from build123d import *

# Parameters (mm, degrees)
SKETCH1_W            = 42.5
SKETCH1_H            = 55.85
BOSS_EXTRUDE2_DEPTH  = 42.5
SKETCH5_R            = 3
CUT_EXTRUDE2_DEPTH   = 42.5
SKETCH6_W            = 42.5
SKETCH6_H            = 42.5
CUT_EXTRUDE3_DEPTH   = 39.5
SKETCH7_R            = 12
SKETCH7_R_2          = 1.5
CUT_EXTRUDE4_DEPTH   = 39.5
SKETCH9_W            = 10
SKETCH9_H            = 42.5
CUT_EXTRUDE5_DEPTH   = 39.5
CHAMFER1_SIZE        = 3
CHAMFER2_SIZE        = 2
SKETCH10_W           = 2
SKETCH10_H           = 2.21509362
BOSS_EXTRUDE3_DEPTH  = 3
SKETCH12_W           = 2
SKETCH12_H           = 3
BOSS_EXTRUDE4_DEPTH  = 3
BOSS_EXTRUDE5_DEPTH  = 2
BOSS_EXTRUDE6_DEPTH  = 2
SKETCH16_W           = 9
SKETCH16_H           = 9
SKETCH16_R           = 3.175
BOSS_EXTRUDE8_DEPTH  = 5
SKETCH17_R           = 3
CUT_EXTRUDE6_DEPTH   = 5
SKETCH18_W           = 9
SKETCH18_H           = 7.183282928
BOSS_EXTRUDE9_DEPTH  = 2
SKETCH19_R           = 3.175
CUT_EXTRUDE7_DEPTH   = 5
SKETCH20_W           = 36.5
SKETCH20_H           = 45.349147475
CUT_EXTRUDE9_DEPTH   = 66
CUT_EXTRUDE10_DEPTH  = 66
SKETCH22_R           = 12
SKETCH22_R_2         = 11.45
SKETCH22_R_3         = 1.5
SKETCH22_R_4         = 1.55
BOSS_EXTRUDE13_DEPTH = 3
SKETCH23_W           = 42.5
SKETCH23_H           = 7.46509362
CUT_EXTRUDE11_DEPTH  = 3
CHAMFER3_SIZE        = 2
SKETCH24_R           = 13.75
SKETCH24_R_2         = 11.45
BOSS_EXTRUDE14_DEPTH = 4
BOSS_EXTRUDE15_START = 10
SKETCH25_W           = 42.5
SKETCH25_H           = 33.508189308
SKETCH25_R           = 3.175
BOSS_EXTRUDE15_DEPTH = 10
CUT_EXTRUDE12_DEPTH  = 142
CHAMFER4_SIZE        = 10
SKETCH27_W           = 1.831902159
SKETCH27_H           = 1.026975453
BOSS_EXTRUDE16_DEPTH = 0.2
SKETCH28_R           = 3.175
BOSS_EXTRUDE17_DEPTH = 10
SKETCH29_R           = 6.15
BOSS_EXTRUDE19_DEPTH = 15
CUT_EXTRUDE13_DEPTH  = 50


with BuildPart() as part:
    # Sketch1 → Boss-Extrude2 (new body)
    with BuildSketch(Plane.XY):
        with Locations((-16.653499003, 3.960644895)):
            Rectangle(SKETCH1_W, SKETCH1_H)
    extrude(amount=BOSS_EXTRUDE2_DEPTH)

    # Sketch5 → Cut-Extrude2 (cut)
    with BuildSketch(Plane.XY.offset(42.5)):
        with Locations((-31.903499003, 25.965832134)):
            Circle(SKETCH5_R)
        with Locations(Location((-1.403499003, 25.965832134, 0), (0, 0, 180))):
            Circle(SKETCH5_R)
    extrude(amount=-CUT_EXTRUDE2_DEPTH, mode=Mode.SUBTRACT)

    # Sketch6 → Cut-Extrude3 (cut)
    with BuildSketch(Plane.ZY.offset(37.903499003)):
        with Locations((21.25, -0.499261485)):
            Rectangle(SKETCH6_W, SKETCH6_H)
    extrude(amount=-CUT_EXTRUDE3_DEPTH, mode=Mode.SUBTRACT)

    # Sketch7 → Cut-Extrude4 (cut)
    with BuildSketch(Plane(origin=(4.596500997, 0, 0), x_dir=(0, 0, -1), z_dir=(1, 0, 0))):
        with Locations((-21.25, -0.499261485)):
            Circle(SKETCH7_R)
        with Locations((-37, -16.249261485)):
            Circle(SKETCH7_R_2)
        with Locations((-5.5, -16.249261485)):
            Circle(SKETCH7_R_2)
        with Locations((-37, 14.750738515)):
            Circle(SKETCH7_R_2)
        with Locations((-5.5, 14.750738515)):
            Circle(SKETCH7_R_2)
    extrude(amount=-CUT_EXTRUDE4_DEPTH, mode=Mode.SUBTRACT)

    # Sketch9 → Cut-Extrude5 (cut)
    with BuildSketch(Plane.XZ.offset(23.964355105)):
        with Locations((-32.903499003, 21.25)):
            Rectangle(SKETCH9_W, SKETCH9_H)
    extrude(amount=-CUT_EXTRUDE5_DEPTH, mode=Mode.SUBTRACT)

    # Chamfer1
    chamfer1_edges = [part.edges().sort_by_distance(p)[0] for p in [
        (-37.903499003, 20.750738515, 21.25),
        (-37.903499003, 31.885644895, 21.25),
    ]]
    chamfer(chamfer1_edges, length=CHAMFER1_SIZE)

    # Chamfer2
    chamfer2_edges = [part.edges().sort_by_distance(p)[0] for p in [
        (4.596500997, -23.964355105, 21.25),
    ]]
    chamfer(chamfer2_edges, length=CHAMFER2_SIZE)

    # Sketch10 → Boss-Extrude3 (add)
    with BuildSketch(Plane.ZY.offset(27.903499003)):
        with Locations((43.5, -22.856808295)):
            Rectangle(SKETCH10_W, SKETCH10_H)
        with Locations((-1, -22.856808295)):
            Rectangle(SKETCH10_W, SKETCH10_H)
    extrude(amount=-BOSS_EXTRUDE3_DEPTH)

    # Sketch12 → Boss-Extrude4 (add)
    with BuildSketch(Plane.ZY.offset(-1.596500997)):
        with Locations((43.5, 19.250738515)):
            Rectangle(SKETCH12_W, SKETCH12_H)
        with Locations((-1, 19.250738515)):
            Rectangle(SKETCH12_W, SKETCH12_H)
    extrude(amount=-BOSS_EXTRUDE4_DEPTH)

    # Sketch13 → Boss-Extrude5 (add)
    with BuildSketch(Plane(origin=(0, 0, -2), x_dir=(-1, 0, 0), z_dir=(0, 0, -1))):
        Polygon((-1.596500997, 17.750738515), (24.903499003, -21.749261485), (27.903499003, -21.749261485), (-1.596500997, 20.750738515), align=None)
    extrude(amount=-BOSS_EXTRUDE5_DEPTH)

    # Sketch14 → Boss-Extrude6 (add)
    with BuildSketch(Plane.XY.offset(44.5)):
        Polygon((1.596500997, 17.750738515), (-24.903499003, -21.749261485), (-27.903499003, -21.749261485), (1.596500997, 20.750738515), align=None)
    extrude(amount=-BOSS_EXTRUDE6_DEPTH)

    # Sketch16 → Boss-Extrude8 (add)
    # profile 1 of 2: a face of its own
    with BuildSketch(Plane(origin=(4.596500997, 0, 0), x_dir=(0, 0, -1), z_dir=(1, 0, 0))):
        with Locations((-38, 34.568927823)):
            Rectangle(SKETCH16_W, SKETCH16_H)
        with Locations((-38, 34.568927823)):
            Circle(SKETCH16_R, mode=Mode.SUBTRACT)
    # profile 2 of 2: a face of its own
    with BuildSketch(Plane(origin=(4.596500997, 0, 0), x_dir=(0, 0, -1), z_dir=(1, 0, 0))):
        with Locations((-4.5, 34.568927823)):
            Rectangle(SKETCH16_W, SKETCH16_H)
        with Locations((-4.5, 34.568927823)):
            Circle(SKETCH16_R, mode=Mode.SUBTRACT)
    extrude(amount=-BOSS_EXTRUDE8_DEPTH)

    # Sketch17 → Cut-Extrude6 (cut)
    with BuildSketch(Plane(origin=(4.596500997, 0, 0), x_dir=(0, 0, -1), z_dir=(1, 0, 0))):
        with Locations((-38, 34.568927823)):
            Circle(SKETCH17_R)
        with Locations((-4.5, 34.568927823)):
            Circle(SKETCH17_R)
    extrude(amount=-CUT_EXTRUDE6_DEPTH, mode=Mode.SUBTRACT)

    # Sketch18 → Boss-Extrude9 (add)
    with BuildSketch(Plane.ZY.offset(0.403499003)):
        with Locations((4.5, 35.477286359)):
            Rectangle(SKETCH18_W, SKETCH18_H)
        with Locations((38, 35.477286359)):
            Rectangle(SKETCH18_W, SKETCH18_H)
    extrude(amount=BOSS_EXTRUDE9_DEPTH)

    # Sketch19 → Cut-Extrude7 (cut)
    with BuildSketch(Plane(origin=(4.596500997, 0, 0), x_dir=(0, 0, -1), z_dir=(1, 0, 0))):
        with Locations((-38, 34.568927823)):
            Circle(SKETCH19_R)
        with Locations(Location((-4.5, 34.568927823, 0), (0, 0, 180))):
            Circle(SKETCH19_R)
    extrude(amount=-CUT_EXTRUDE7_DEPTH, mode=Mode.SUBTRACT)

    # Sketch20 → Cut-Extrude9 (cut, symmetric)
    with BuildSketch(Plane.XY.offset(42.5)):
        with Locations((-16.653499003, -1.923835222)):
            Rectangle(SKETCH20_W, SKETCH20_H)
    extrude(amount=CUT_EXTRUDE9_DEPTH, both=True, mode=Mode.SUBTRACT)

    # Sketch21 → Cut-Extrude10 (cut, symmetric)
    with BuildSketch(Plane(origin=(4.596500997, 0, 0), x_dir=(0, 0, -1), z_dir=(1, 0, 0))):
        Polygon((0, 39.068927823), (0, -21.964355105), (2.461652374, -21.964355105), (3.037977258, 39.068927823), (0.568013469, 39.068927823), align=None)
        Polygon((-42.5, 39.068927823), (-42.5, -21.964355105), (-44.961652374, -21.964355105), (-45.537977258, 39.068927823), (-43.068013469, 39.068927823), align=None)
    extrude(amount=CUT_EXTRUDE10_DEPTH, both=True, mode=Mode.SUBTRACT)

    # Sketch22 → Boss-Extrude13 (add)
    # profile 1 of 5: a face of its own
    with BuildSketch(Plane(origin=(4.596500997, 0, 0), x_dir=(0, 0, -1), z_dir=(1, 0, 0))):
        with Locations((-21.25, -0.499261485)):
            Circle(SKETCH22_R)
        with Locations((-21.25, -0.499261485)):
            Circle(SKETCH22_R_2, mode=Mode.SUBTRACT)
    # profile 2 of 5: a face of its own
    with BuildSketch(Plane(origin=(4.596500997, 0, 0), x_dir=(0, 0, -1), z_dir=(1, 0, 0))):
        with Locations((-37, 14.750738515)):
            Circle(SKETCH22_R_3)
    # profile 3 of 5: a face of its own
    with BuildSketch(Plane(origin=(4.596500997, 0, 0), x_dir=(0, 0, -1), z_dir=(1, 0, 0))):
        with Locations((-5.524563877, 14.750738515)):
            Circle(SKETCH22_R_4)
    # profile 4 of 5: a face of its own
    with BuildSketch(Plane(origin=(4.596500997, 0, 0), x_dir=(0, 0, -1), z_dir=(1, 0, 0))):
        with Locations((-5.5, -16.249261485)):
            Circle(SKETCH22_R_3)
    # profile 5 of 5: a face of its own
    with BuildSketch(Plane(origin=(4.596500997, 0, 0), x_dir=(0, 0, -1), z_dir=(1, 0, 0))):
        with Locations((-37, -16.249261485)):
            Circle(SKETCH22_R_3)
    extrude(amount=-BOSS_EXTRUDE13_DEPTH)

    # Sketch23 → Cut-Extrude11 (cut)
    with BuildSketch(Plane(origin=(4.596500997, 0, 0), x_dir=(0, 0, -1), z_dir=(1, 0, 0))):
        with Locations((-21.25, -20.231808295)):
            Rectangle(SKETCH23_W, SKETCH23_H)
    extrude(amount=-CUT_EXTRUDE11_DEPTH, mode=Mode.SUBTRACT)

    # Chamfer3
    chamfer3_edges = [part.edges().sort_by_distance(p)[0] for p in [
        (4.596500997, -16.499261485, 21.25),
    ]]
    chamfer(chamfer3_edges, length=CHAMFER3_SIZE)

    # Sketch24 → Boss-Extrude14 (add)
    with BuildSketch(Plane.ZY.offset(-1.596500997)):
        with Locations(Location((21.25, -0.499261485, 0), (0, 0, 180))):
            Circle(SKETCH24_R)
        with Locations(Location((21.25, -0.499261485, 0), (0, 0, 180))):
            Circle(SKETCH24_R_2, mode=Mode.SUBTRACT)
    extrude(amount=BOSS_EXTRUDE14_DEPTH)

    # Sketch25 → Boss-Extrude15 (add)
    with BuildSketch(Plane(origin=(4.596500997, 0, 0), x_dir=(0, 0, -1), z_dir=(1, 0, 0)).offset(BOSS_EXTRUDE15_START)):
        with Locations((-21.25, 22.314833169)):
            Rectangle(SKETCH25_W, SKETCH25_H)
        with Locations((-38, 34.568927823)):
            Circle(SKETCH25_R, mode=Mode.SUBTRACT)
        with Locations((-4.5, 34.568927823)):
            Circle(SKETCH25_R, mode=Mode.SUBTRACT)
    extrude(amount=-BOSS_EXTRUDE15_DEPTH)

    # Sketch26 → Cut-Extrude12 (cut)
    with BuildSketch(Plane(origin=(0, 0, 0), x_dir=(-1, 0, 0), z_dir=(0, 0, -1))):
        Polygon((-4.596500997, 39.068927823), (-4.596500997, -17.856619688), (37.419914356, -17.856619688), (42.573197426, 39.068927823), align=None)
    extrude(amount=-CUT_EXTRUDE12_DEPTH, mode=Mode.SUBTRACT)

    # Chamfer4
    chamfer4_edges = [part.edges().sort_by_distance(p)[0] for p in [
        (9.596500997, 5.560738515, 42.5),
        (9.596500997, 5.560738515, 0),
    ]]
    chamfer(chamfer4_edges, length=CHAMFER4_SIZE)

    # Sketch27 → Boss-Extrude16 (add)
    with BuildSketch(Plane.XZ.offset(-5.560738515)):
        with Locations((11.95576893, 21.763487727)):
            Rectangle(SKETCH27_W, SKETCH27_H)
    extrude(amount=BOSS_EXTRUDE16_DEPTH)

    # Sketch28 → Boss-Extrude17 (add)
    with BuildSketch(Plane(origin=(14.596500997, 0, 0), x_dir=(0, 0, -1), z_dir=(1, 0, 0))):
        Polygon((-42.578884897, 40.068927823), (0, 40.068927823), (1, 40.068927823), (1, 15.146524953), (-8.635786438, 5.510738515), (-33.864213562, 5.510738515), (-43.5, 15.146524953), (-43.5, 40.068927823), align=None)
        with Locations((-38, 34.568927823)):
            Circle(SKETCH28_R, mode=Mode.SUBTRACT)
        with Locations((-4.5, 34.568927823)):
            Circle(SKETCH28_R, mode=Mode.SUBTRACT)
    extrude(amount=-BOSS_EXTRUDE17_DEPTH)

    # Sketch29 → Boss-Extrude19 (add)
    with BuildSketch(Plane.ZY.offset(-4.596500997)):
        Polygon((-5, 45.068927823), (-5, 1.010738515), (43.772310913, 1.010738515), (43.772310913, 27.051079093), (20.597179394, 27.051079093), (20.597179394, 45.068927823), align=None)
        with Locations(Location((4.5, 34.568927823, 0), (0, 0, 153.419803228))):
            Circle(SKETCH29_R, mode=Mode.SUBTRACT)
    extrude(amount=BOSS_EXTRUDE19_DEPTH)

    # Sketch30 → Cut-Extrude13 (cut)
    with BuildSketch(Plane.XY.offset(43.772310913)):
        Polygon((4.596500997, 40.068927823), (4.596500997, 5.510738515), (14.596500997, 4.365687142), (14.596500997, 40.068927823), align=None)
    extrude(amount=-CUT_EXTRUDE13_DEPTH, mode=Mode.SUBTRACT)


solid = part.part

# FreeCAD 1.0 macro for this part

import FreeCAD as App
import Part
import Sketcher

V = App.Vector
Q = App.Units.Quantity


def edges_at(feature, points):
    """Names of the edges that pass closest to the given points."""
    edges = feature.Shape.Edges
    near = lambda p: min(range(len(edges)), key=lambda i: edges[i].distToShape(Part.Vertex(*p))[0])
    return sorted({f"Edge{near(p) + 1}" for p in points})

doc = App.newDocument("Part")
body = doc.addObject("PartDesign::Body", "Body")

# Sketch on XY plane
sketch1 = body.newObject("Sketcher::SketchObject", "Sketch")
sketch1.AttachmentSupport = (doc.getObject("XY_Plane"), [""])
sketch1.MapMode = "FlatFace"
sketch1.addGeometry([
    Part.LineSegment(V(-37.903499, 31.885645, 0), V(-37.903499, -23.964355, 0)),
    Part.LineSegment(V(-37.903499, -23.964355, 0), V(4.596501, -23.964355, 0)),
    Part.LineSegment(V(4.596501, -23.964355, 0), V(4.596501, 31.885645, 0)),
    Part.LineSegment(V(4.596501, 31.885645, 0), V(-37.903499, 31.885645, 0)),
], False)
sketch1.addConstraint([
    Sketcher.Constraint("Coincident", 0, 2, 1, 1),
    Sketcher.Constraint("Coincident", 1, 2, 2, 1),
    Sketcher.Constraint("Coincident", 2, 2, 3, 1),
    Sketcher.Constraint("Coincident", 3, 2, 0, 1),
    Sketcher.Constraint("Vertical", 0),
    Sketcher.Constraint("Horizontal", 1),
    Sketcher.Constraint("Vertical", 2),
    Sketcher.Constraint("Horizontal", 3),
    Sketcher.Constraint("DistanceX", 1, 1, 1, 2, Q("42.5 mm")),
    Sketcher.Constraint("DistanceY", 0, 2, 0, 1, Q("55.85 mm")),
    Sketcher.Constraint("DistanceX", 0, 2, -1, 1, Q("37.903499 mm")),
    Sketcher.Constraint("DistanceY", 0, 2, -1, 1, Q("23.964355 mm")),
])
pad1 = body.newObject("PartDesign::Pad", "Pad")
pad1.Profile = sketch1
pad1.Length = 42.5

# Sketch on XY plane
sketch2 = body.newObject("Sketcher::SketchObject", "Sketch001")
sketch2.AttachmentSupport = (doc.getObject("XY_Plane"), [""])
sketch2.MapMode = "FlatFace"
sketch2.AttachmentOffset = App.Placement(V(0, 0, 42.5), App.Rotation())
sketch2.addGeometry([
    Part.Circle(V(-31.903499, 25.965832, 0), V(0, 0, 1), 3),
    Part.Circle(V(-1.403499, 25.965832, 0), V(0, 0, 1), 3),
], False)
sketch2.addConstraint([
    Sketcher.Constraint("Equal", 0, 1),
    Sketcher.Constraint("Horizontal", 0, 3, 1, 3),
    Sketcher.Constraint("Diameter", 0, Q("6 mm")),
    Sketcher.Constraint("DistanceX", 0, 3, 1, 3, Q("30.5 mm")),
    Sketcher.Constraint("DistanceX", 0, 3, -1, 1, Q("31.903499 mm")),
    Sketcher.Constraint("DistanceY", -1, 1, 0, 3, Q("25.965832 mm")),
])
pocket1 = body.newObject("PartDesign::Pocket", "Pocket")
pocket1.Profile = sketch2
pocket1.Length = 42.5

# Sketch on YZ plane
sketch3 = body.newObject("Sketcher::SketchObject", "Sketch002")
sketch3.AttachmentSupport = (doc.getObject("YZ_Plane"), [""])
sketch3.MapMode = "FlatFace"
sketch3.AttachmentOffset = App.Placement(V(0, 0, -37.903499), App.Rotation())
sketch3.addGeometry([
    Part.LineSegment(V(20.750739, 0, 0), V(-21.749261, 0, 0)),
    Part.LineSegment(V(-21.749261, 0, 0), V(-21.749261, 42.5, 0)),
    Part.LineSegment(V(-21.749261, 42.5, 0), V(20.750739, 42.5, 0)),
    Part.LineSegment(V(20.750739, 42.5, 0), V(20.750739, 0, 0)),
], False)
sketch3.addConstraint([
    Sketcher.Constraint("Coincident", 0, 2, 1, 1),
    Sketcher.Constraint("Coincident", 1, 2, 2, 1),
    Sketcher.Constraint("Coincident", 2, 2, 3, 1),
    Sketcher.Constraint("Coincident", 3, 2, 0, 1),
    Sketcher.Constraint("Horizontal", 0),
    Sketcher.Constraint("Vertical", 1),
    Sketcher.Constraint("Horizontal", 2),
    Sketcher.Constraint("Vertical", 3),
    Sketcher.Constraint("PointOnObject", 0, 2, -1),
    Sketcher.Constraint("Equal", 2, 1),
    Sketcher.Constraint("DistanceX", 0, 2, 0, 1, Q("42.5 mm")),
    Sketcher.Constraint("DistanceX", 0, 2, -1, 1, Q("21.749261 mm")),
])
pocket2 = body.newObject("PartDesign::Pocket", "Pocket001")
pocket2.Profile = sketch3
pocket2.Length = 39.5
pocket2.Reversed = True

# Sketch on YZ plane
sketch4 = body.newObject("Sketcher::SketchObject", "Sketch003")
sketch4.AttachmentSupport = (doc.getObject("YZ_Plane"), [""])
sketch4.MapMode = "FlatFace"
sketch4.AttachmentOffset = App.Placement(V(0, 0, 4.596501), App.Rotation())
sketch4.addGeometry([
    Part.Circle(V(-0.499261, 21.25, 0), V(0, 0, 1), 12),  # 0
    Part.Circle(V(-16.249261, 37, 0), V(0, 0, 1), 1.5),  # 1
    Part.Circle(V(-16.249261, 5.5, 0), V(0, 0, 1), 1.5),  # 2
    Part.Circle(V(14.750739, 37, 0), V(0, 0, 1), 1.5),  # 3
    Part.Circle(V(14.750739, 5.5, 0), V(0, 0, 1), 1.5),  # 4
], False)
sketch4.addConstraint([
    Sketcher.Constraint("Equal", 1, 2),
    Sketcher.Constraint("Equal", 2, 3),
    Sketcher.Constraint("Equal", 3, 4),
    Sketcher.Constraint("Horizontal", 1, 3, 3, 3),
    Sketcher.Constraint("Horizontal", 2, 3, 4, 3),
    Sketcher.Constraint("Vertical", 1, 3, 2, 3),
    Sketcher.Constraint("Vertical", 3, 3, 4, 3),
    Sketcher.Constraint("Diameter", 0, Q("24 mm")),
    Sketcher.Constraint("Diameter", 1, Q("3 mm")),
    Sketcher.Constraint("DistanceY", -1, 1, 1, 3, Q("37 mm")),
    Sketcher.Constraint("DistanceX", 1, 3, 3, 3, Q("31 mm")),
    Sketcher.Constraint("DistanceY", -1, 1, 2, 3, Q("5.5 mm")),
    Sketcher.Constraint("DistanceY", -1, 1, 0, 3, Q("21.25 mm")),
    Sketcher.Constraint("DistanceX", 1, 3, 0, 3, Q("15.75 mm")),
    Sketcher.Constraint("DistanceX", 0, 3, -1, 1, Q("0.499261 mm")),
])
pocket3 = body.newObject("PartDesign::Pocket", "Pocket002")
pocket3.Profile = sketch4
pocket3.Length = 39.5

# Sketch on XZ plane
sketch5 = body.newObject("Sketcher::SketchObject", "Sketch004")
sketch5.AttachmentSupport = (doc.getObject("XZ_Plane"), [""])
sketch5.MapMode = "FlatFace"
sketch5.AttachmentOffset = App.Placement(V(0, 0, 23.964355), App.Rotation())
sketch5.addGeometry([
    Part.LineSegment(V(-37.903499, 42.5, 0), V(-37.903499, 0, 0)),
    Part.LineSegment(V(-37.903499, 0, 0), V(-27.903499, 0, 0)),
    Part.LineSegment(V(-27.903499, 0, 0), V(-27.903499, 42.5, 0)),
    Part.LineSegment(V(-27.903499, 42.5, 0), V(-37.903499, 42.5, 0)),
], False)
sketch5.addConstraint([
    Sketcher.Constraint("Coincident", 0, 2, 1, 1),
    Sketcher.Constraint("Coincident", 1, 2, 2, 1),
    Sketcher.Constraint("Coincident", 2, 2, 3, 1),
    Sketcher.Constraint("Coincident", 3, 2, 0, 1),
    Sketcher.Constraint("Vertical", 0),
    Sketcher.Constraint("Horizontal", 1),
    Sketcher.Constraint("Vertical", 2),
    Sketcher.Constraint("Horizontal", 3),
    Sketcher.Constraint("PointOnObject", 0, 2, -1),
    Sketcher.Constraint("DistanceX", 1, 1, 1, 2, Q("10 mm")),
    Sketcher.Constraint("DistanceY", 0, 2, 0, 1, Q("42.5 mm")),
    Sketcher.Constraint("DistanceX", 0, 2, -1, 1, Q("37.903499 mm")),
])
pocket4 = body.newObject("PartDesign::Pocket", "Pocket003")
pocket4.Profile = sketch5
pocket4.Length = 39.5
doc.recompute()

chamfer = body.newObject("PartDesign::Chamfer", "Chamfer")
chamfer.Base = (pocket4, edges_at(pocket4, [(-37.903, 20.751, 21.25), (-37.903, 31.886, 21.25)]))
chamfer.Size = 3
doc.recompute()

chamfer2 = body.newObject("PartDesign::Chamfer", "Chamfer001")
chamfer2.Base = (chamfer, edges_at(chamfer, [(4.597, -23.964, 21.25)]))
chamfer2.Size = 2

# Sketch on YZ plane
sketch6 = body.newObject("Sketcher::SketchObject", "Sketch005")
sketch6.AttachmentSupport = (doc.getObject("YZ_Plane"), [""])
sketch6.MapMode = "FlatFace"
sketch6.AttachmentOffset = App.Placement(V(0, 0, -27.903499), App.Rotation())
sketch6.addGeometry([
    Part.LineSegment(V(-21.749261, 42.5, 0), V(-23.964355, 42.5, 0)),  # 0
    Part.LineSegment(V(-23.964355, 42.5, 0), V(-23.964355, 44.5, 0)),  # 1
    Part.LineSegment(V(-23.964355, 44.5, 0), V(-21.749261, 44.5, 0)),  # 2
    Part.LineSegment(V(-21.749261, 44.5, 0), V(-21.749261, 42.5, 0)),  # 3
    Part.LineSegment(V(-21.749261, -2, 0), V(-23.964355, -2, 0)),  # 4
    Part.LineSegment(V(-23.964355, -2, 0), V(-23.964355, 0, 0)),  # 5
    Part.LineSegment(V(-23.964355, 0, 0), V(-21.749261, 0, 0)),  # 6
    Part.LineSegment(V(-21.749261, 0, 0), V(-21.749261, -2, 0)),  # 7
], False)
sketch6.addConstraint([
    Sketcher.Constraint("Coincident", 0, 2, 1, 1),
    Sketcher.Constraint("Coincident", 1, 2, 2, 1),
    Sketcher.Constraint("Coincident", 2, 2, 3, 1),
    Sketcher.Constraint("Coincident", 3, 2, 0, 1),
    Sketcher.Constraint("Coincident", 4, 2, 5, 1),
    Sketcher.Constraint("Coincident", 5, 2, 6, 1),
    Sketcher.Constraint("Coincident", 6, 2, 7, 1),
    Sketcher.Constraint("Coincident", 7, 2, 4, 1),
    Sketcher.Constraint("Horizontal", 0),
    Sketcher.Constraint("Vertical", 1),
    Sketcher.Constraint("Horizontal", 2),
    Sketcher.Constraint("Vertical", 3),
    Sketcher.Constraint("Horizontal", 4),
    Sketcher.Constraint("Vertical", 5),
    Sketcher.Constraint("Horizontal", 6),
    Sketcher.Constraint("Vertical", 7),
    Sketcher.Constraint("PointOnObject", 5, 2, -1),
    Sketcher.Constraint("Vertical", 1, 2, 4, 2),
    Sketcher.Constraint("Vertical", 3, 2, 6, 2),
    Sketcher.Constraint("Equal", 3, 5),
    Sketcher.Constraint("DistanceY", 1, 1, 1, 2, Q("2 mm")),
    Sketcher.Constraint("DistanceY", -1, 1, 0, 2, Q("42.5 mm")),
    Sketcher.Constraint("DistanceX", 0, 2, 0, 1, Q("2.215094 mm")),
    Sketcher.Constraint("DistanceX", 2, 2, -1, 1, Q("21.749261 mm")),
])
pad2 = body.newObject("PartDesign::Pad", "Pad001")
pad2.Profile = sketch6
pad2.Length = 3

# Sketch on YZ plane
sketch7 = body.newObject("Sketcher::SketchObject", "Sketch006")
sketch7.AttachmentSupport = (doc.getObject("YZ_Plane"), [""])
sketch7.MapMode = "FlatFace"
sketch7.AttachmentOffset = App.Placement(V(0, 0, 1.596501), App.Rotation())
sketch7.addGeometry([
    Part.LineSegment(V(20.750739, 42.5, 0), V(17.750739, 42.5, 0)),  # 0
    Part.LineSegment(V(17.750739, 42.5, 0), V(17.750739, 44.5, 0)),  # 1
    Part.LineSegment(V(17.750739, 44.5, 0), V(20.750739, 44.5, 0)),  # 2
    Part.LineSegment(V(20.750739, 44.5, 0), V(20.750739, 42.5, 0)),  # 3
    Part.LineSegment(V(20.750739, -2, 0), V(17.750739, -2, 0)),  # 4
    Part.LineSegment(V(17.750739, -2, 0), V(17.750739, 0, 0)),  # 5
    Part.LineSegment(V(17.750739, 0, 0), V(20.750739, 0, 0)),  # 6
    Part.LineSegment(V(20.750739, 0, 0), V(20.750739, -2, 0)),  # 7
], False)
sketch7.addConstraint([
    Sketcher.Constraint("Coincident", 0, 2, 1, 1),
    Sketcher.Constraint("Coincident", 1, 2, 2, 1),
    Sketcher.Constraint("Coincident", 2, 2, 3, 1),
    Sketcher.Constraint("Coincident", 3, 2, 0, 1),
    Sketcher.Constraint("Coincident", 4, 2, 5, 1),
    Sketcher.Constraint("Coincident", 5, 2, 6, 1),
    Sketcher.Constraint("Coincident", 6, 2, 7, 1),
    Sketcher.Constraint("Coincident", 7, 2, 4, 1),
    Sketcher.Constraint("Horizontal", 0),
    Sketcher.Constraint("Vertical", 1),
    Sketcher.Constraint("Horizontal", 2),
    Sketcher.Constraint("Vertical", 3),
    Sketcher.Constraint("Horizontal", 4),
    Sketcher.Constraint("Vertical", 5),
    Sketcher.Constraint("Horizontal", 6),
    Sketcher.Constraint("Vertical", 7),
    Sketcher.Constraint("PointOnObject", 5, 2, -1),
    Sketcher.Constraint("Vertical", 1, 2, 4, 2),
    Sketcher.Constraint("Vertical", 3, 2, 6, 2),
    Sketcher.Constraint("Equal", 3, 5),
    Sketcher.Constraint("DistanceX", 0, 2, 0, 1, Q("3 mm")),
    Sketcher.Constraint("DistanceY", 1, 1, 1, 2, Q("2 mm")),
    Sketcher.Constraint("DistanceY", -1, 1, 0, 2, Q("42.5 mm")),
    Sketcher.Constraint("DistanceX", -1, 1, 0, 2, Q("17.750739 mm")),
])
pad3 = body.newObject("PartDesign::Pad", "Pad002")
pad3.Profile = sketch7
pad3.Length = 3

# Sketch on XY plane
sketch8 = body.newObject("Sketcher::SketchObject", "Sketch007")
sketch8.AttachmentSupport = (doc.getObject("XY_Plane"), [""])
sketch8.MapMode = "FlatFace"
sketch8.AttachmentOffset = App.Placement(V(0, 0, -2), App.Rotation())
sketch8.addGeometry([
    Part.LineSegment(V(1.596501, 17.750739, 0), V(-24.903499, -21.749261, 0)),
    Part.LineSegment(V(-24.903499, -21.749261, 0), V(-27.903499, -21.749261, 0)),
    Part.LineSegment(V(-27.903499, -21.749261, 0), V(1.596501, 20.750739, 0)),
    Part.LineSegment(V(1.596501, 20.750739, 0), V(1.596501, 17.750739, 0)),
], False)
sketch8.addConstraint([
    Sketcher.Constraint("Coincident", 0, 2, 1, 1),
    Sketcher.Constraint("Coincident", 1, 2, 2, 1),
    Sketcher.Constraint("Coincident", 2, 2, 3, 1),
    Sketcher.Constraint("Coincident", 3, 2, 0, 1),
    Sketcher.Constraint("Horizontal", 1),
    Sketcher.Constraint("Vertical", 3),
    Sketcher.Constraint("Equal", 1, 3),
    Sketcher.Constraint("DistanceX", 1, 2, 1, 1, Q("3 mm")),
    Sketcher.Constraint("DistanceX", 0, 2, 2, 2, Q("26.5 mm")),
    Sketcher.Constraint("DistanceY", 0, 2, 2, 2, Q("42.5 mm")),
    Sketcher.Constraint("DistanceX", 0, 2, -1, 1, Q("24.903499 mm")),
    Sketcher.Constraint("DistanceY", 0, 2, -1, 1, Q("21.749261 mm")),
])
pad4 = body.newObject("PartDesign::Pad", "Pad003")
pad4.Profile = sketch8
pad4.Length = 2

# Sketch on XY plane
sketch9 = body.newObject("Sketcher::SketchObject", "Sketch008")
sketch9.AttachmentSupport = (doc.getObject("XY_Plane"), [""])
sketch9.MapMode = "FlatFace"
sketch9.AttachmentOffset = App.Placement(V(0, 0, 44.5), App.Rotation())
sketch9.addGeometry([
    Part.LineSegment(V(-24.903499, -21.749261, 0), V(1.596501, 17.750739, 0)),
    Part.LineSegment(V(1.596501, 17.750739, 0), V(1.596501, 20.750739, 0)),
    Part.LineSegment(V(1.596501, 20.750739, 0), V(-27.903499, -21.749261, 0)),
    Part.LineSegment(V(-27.903499, -21.749261, 0), V(-24.903499, -21.749261, 0)),
], False)
sketch9.addConstraint([
    Sketcher.Constraint("Coincident", 0, 2, 1, 1),
    Sketcher.Constraint("Coincident", 1, 2, 2, 1),
    Sketcher.Constraint("Coincident", 2, 2, 3, 1),
    Sketcher.Constraint("Coincident", 3, 2, 0, 1),
    Sketcher.Constraint("Vertical", 1),
    Sketcher.Constraint("Horizontal", 3),
    Sketcher.Constraint("Equal", 3, 1),
    Sketcher.Constraint("DistanceX", 3, 1, 3, 2, Q("3 mm")),
    Sketcher.Constraint("DistanceX", 2, 2, 0, 2, Q("29.5 mm")),
    Sketcher.Constraint("DistanceY", 2, 2, 0, 2, Q("39.5 mm")),
    Sketcher.Constraint("DistanceX", -1, 1, 0, 2, Q("1.596501 mm")),
    Sketcher.Constraint("DistanceY", -1, 1, 0, 2, Q("17.750739 mm")),
])
pad5 = body.newObject("PartDesign::Pad", "Pad004")
pad5.Profile = sketch9
pad5.Length = 2
pad5.Reversed = True

# Sketch on YZ plane
sketch10 = body.newObject("Sketcher::SketchObject", "Sketch009")
sketch10.AttachmentSupport = (doc.getObject("YZ_Plane"), [""])
sketch10.MapMode = "FlatFace"
sketch10.AttachmentOffset = App.Placement(V(0, 0, 4.596501), App.Rotation())
sketch10.addGeometry([
    Part.LineSegment(V(39.068928, 42.5, 0), V(30.068928, 42.5, 0)),  # 0
    Part.LineSegment(V(30.068928, 42.5, 0), V(30.068928, 33.5, 0)),  # 1
    Part.LineSegment(V(30.068928, 33.5, 0), V(39.068928, 33.5, 0)),  # 2
    Part.LineSegment(V(39.068928, 33.5, 0), V(39.068928, 42.5, 0)),  # 3
    Part.Circle(V(34.568928, 38, 0), V(0, 0, 1), 3.175),  # 4
    Part.LineSegment(V(39.068928, 9, 0), V(30.068928, 9, 0)),  # 5
    Part.LineSegment(V(30.068928, 9, 0), V(30.068928, 0, 0)),  # 6
    Part.LineSegment(V(30.068928, 0, 0), V(39.068928, 0, 0)),  # 7
    Part.LineSegment(V(39.068928, 0, 0), V(39.068928, 9, 0)),  # 8
    Part.Circle(V(34.568928, 4.5, 0), V(0, 0, 1), 3.175),  # 9
], False)
sketch10.addConstraint([
    Sketcher.Constraint("Coincident", 0, 2, 1, 1),
    Sketcher.Constraint("Coincident", 1, 2, 2, 1),
    Sketcher.Constraint("Coincident", 2, 2, 3, 1),
    Sketcher.Constraint("Coincident", 3, 2, 0, 1),
    Sketcher.Constraint("Coincident", 5, 2, 6, 1),
    Sketcher.Constraint("Coincident", 6, 2, 7, 1),
    Sketcher.Constraint("Coincident", 7, 2, 8, 1),
    Sketcher.Constraint("Coincident", 8, 2, 5, 1),
    Sketcher.Constraint("Horizontal", 0),
    Sketcher.Constraint("Vertical", 1),
    Sketcher.Constraint("Horizontal", 2),
    Sketcher.Constraint("Vertical", 3),
    Sketcher.Constraint("Horizontal", 5),
    Sketcher.Constraint("Vertical", 6),
    Sketcher.Constraint("Horizontal", 7),
    Sketcher.Constraint("Vertical", 8),
    Sketcher.Constraint("Equal", 4, 9),
    Sketcher.Constraint("PointOnObject", 6, 2, -1),
    Sketcher.Constraint("Vertical", 4, 3, 9, 3),
    Sketcher.Constraint("Vertical", 1, 2, 5, 2),
    Sketcher.Constraint("Vertical", 3, 2, 7, 2),
    Sketcher.Constraint("Equal", 7, 1),
    Sketcher.Constraint("Equal", 3, 6),
    Sketcher.Constraint("Diameter", 4, Q("6.35 mm")),
    Sketcher.Constraint("DistanceX", 0, 2, 0, 1, Q("9 mm")),
    Sketcher.Constraint("DistanceY", -1, 1, 4, 3, Q("38 mm")),
    Sketcher.Constraint("DistanceY", 9, 3, 0, 2, Q("38 mm")),
    Sketcher.Constraint("DistanceY", -1, 1, 9, 3, Q("4.5 mm")),
    Sketcher.Constraint("DistanceX", 0, 2, 4, 3, Q("4.5 mm")),
    Sketcher.Constraint("DistanceX", -1, 1, 4, 3, Q("34.568928 mm")),
])
pad6 = body.newObject("PartDesign::Pad", "Pad005")
pad6.Profile = sketch10
pad6.Length = 5
pad6.Reversed = True

# Sketch on YZ plane
sketch11 = body.newObject("Sketcher::SketchObject", "Sketch010")
sketch11.AttachmentSupport = (doc.getObject("YZ_Plane"), [""])
sketch11.MapMode = "FlatFace"
sketch11.AttachmentOffset = App.Placement(V(0, 0, 4.596501), App.Rotation())
sketch11.addGeometry([
    Part.Circle(V(34.568928, 38, 0), V(0, 0, 1), 3),
    Part.Circle(V(34.568928, 4.5, 0), V(0, 0, 1), 3),
], False)
sketch11.addConstraint([
    Sketcher.Constraint("Equal", 0, 1),
    Sketcher.Constraint("Vertical", 0, 3, 1, 3),
    Sketcher.Constraint("Diameter", 0, Q("6 mm")),
    Sketcher.Constraint("DistanceY", -1, 1, 0, 3, Q("38 mm")),
    Sketcher.Constraint("DistanceY", -1, 1, 1, 3, Q("4.5 mm")),
    Sketcher.Constraint("DistanceX", -1, 1, 0, 3, Q("34.568928 mm")),
])
pocket5 = body.newObject("PartDesign::Pocket", "Pocket004")
pocket5.Profile = sketch11
pocket5.Length = 5

# Sketch on YZ plane
sketch12 = body.newObject("Sketcher::SketchObject", "Sketch011")
sketch12.AttachmentSupport = (doc.getObject("YZ_Plane"), [""])
sketch12.MapMode = "FlatFace"
sketch12.AttachmentOffset = App.Placement(V(0, 0, -0.403499), App.Rotation())
sketch12.addGeometry([
    Part.LineSegment(V(39.068928, 0, 0), V(31.885645, 0, 0)),  # 0
    Part.LineSegment(V(31.885645, 0, 0), V(31.885645, 9, 0)),  # 1
    Part.LineSegment(V(31.885645, 9, 0), V(39.068928, 9, 0)),  # 2
    Part.LineSegment(V(39.068928, 9, 0), V(39.068928, 0, 0)),  # 3
    Part.LineSegment(V(39.068928, 33.5, 0), V(31.885645, 33.5, 0)),  # 4
    Part.LineSegment(V(31.885645, 33.5, 0), V(31.885645, 42.5, 0)),  # 5
    Part.LineSegment(V(31.885645, 42.5, 0), V(39.068928, 42.5, 0)),  # 6
    Part.LineSegment(V(39.068928, 42.5, 0), V(39.068928, 33.5, 0)),  # 7
], False)
sketch12.addConstraint([
    Sketcher.Constraint("Coincident", 0, 2, 1, 1),
    Sketcher.Constraint("Coincident", 1, 2, 2, 1),
    Sketcher.Constraint("Coincident", 2, 2, 3, 1),
    Sketcher.Constraint("Coincident", 3, 2, 0, 1),
    Sketcher.Constraint("Coincident", 4, 2, 5, 1),
    Sketcher.Constraint("Coincident", 5, 2, 6, 1),
    Sketcher.Constraint("Coincident", 6, 2, 7, 1),
    Sketcher.Constraint("Coincident", 7, 2, 4, 1),
    Sketcher.Constraint("Horizontal", 0),
    Sketcher.Constraint("Vertical", 1),
    Sketcher.Constraint("Horizontal", 2),
    Sketcher.Constraint("Vertical", 3),
    Sketcher.Constraint("Horizontal", 4),
    Sketcher.Constraint("Vertical", 5),
    Sketcher.Constraint("Horizontal", 6),
    Sketcher.Constraint("Vertical", 7),
    Sketcher.Constraint("PointOnObject", 0, 2, -1),
    Sketcher.Constraint("Vertical", 1, 2, 4, 2),
    Sketcher.Constraint("Vertical", 3, 2, 6, 2),
    Sketcher.Constraint("Equal", 3, 5),
    Sketcher.Constraint("DistanceY", 1, 1, 1, 2, Q("9 mm")),
    Sketcher.Constraint("DistanceY", -1, 1, 4, 2, Q("33.5 mm")),
    Sketcher.Constraint("DistanceX", 0, 2, 0, 1, Q("7.183283 mm")),
    Sketcher.Constraint("DistanceX", -1, 1, 0, 2, Q("31.885645 mm")),
])
pad7 = body.newObject("PartDesign::Pad", "Pad006")
pad7.Profile = sketch12
pad7.Length = 2
pad7.Reversed = True

# Sketch on YZ plane
sketch13 = body.newObject("Sketcher::SketchObject", "Sketch012")
sketch13.AttachmentSupport = (doc.getObject("YZ_Plane"), [""])
sketch13.MapMode = "FlatFace"
sketch13.AttachmentOffset = App.Placement(V(0, 0, 4.596501), App.Rotation())
sketch13.addGeometry([
    Part.Circle(V(34.568928, 38, 0), V(0, 0, 1), 3.175),
    Part.Circle(V(34.568928, 4.5, 0), V(0, 0, 1), 3.175),
], False)
sketch13.addConstraint([
    Sketcher.Constraint("Equal", 0, 1),
    Sketcher.Constraint("Vertical", 0, 3, 1, 3),
    Sketcher.Constraint("Diameter", 0, Q("6.35 mm")),
    Sketcher.Constraint("DistanceY", -1, 1, 0, 3, Q("38 mm")),
    Sketcher.Constraint("DistanceY", -1, 1, 1, 3, Q("4.5 mm")),
    Sketcher.Constraint("DistanceX", -1, 1, 0, 3, Q("34.568928 mm")),
])
pocket6 = body.newObject("PartDesign::Pocket", "Pocket005")
pocket6.Profile = sketch13
pocket6.Length = 5

# Sketch on XY plane
sketch14 = body.newObject("Sketcher::SketchObject", "Sketch013")
sketch14.AttachmentSupport = (doc.getObject("XY_Plane"), [""])
sketch14.MapMode = "FlatFace"
sketch14.AttachmentOffset = App.Placement(V(0, 0, 42.5), App.Rotation())
sketch14.addGeometry([
    Part.LineSegment(V(-34.903499, 20.750739, 0), V(-34.903499, -24.598409, 0)),
    Part.LineSegment(V(-34.903499, -24.598409, 0), V(1.596501, -24.598409, 0)),
    Part.LineSegment(V(1.596501, -24.598409, 0), V(1.596501, 20.750739, 0)),
    Part.LineSegment(V(1.596501, 20.750739, 0), V(-34.903499, 20.750739, 0)),
], False)
sketch14.addConstraint([
    Sketcher.Constraint("Coincident", 0, 2, 1, 1),
    Sketcher.Constraint("Coincident", 1, 2, 2, 1),
    Sketcher.Constraint("Coincident", 2, 2, 3, 1),
    Sketcher.Constraint("Coincident", 3, 2, 0, 1),
    Sketcher.Constraint("Vertical", 0),
    Sketcher.Constraint("Horizontal", 1),
    Sketcher.Constraint("Vertical", 2),
    Sketcher.Constraint("Horizontal", 3),
    Sketcher.Constraint("DistanceX", 1, 1, 1, 2, Q("36.5 mm")),
    Sketcher.Constraint("DistanceX", 0, 2, -1, 1, Q("34.903499 mm")),
    Sketcher.Constraint("DistanceY", 0, 2, 0, 1, Q("45.349147 mm")),
    Sketcher.Constraint("DistanceY", 0, 2, -1, 1, Q("24.598409 mm")),
])
pocket7 = body.newObject("PartDesign::Pocket", "Pocket006")
pocket7.Profile = sketch14
pocket7.Length = 132
pocket7.Midplane = True

# Sketch on YZ plane
sketch15 = body.newObject("Sketcher::SketchObject", "Sketch014")
sketch15.AttachmentSupport = (doc.getObject("YZ_Plane"), [""])
sketch15.MapMode = "FlatFace"
sketch15.AttachmentOffset = App.Placement(V(0, 0, 4.596501), App.Rotation())
sketch15.addGeometry([
    Part.LineSegment(V(39.068928, 0, 0), V(-21.964355, 0, 0)),  # 0
    Part.LineSegment(V(-21.964355, 0, 0), V(-21.964355, -2.461652, 0)),  # 1
    Part.LineSegment(V(-21.964355, -2.461652, 0), V(39.068928, -3.037977, 0)),  # 2
    Part.LineSegment(V(39.068928, -3.037977, 0), V(39.068928, 0, 0)),  # 3
    Part.LineSegment(V(-21.964355, 42.5, 0), V(39.068928, 42.5, 0)),  # 4
    Part.LineSegment(V(39.068928, 42.5, 0), V(39.068928, 45.537977, 0)),  # 5
    Part.LineSegment(V(39.068928, 45.537977, 0), V(-21.964355, 44.961652, 0)),  # 6
    Part.LineSegment(V(-21.964355, 44.961652, 0), V(-21.964355, 42.5, 0)),  # 7
], False)
sketch15.addConstraint([
    Sketcher.Constraint("Coincident", 0, 2, 1, 1),
    Sketcher.Constraint("Coincident", 1, 2, 2, 1),
    Sketcher.Constraint("Coincident", 2, 2, 3, 1),
    Sketcher.Constraint("Coincident", 3, 2, 0, 1),
    Sketcher.Constraint("Coincident", 4, 2, 5, 1),
    Sketcher.Constraint("Coincident", 5, 2, 6, 1),
    Sketcher.Constraint("Coincident", 6, 2, 7, 1),
    Sketcher.Constraint("Coincident", 7, 2, 4, 1),
    Sketcher.Constraint("Horizontal", 0),
    Sketcher.Constraint("Vertical", 1),
    Sketcher.Constraint("Vertical", 3),
    Sketcher.Constraint("Horizontal", 4),
    Sketcher.Constraint("Vertical", 5),
    Sketcher.Constraint("Vertical", 7),
    Sketcher.Constraint("PointOnObject", 0, 2, -1),
    Sketcher.Constraint("Vertical", 3, 2, 4, 2),
    Sketcher.Constraint("Vertical", 1, 2, 6, 2),
    Sketcher.Constraint("Equal", 3, 5),
    Sketcher.Constraint("Equal", 1, 7),
    Sketcher.Constraint("DistanceY", -1, 1, 4, 2, Q("42.5 mm")),
    Sketcher.Constraint("DistanceX", 0, 2, 0, 1, Q("61.033283 mm")),
    Sketcher.Constraint("DistanceY", 1, 2, 1, 1, Q("2.461652 mm")),
    Sketcher.Constraint("DistanceY", 3, 1, 3, 2, Q("3.037977 mm")),
    Sketcher.Constraint("DistanceX", 0, 2, -1, 1, Q("21.964355 mm")),
])
pocket8 = body.newObject("PartDesign::Pocket", "Pocket007")
pocket8.Profile = sketch15
pocket8.Length = 132
pocket8.Midplane = True

# Sketch on YZ plane
sketch16 = body.newObject("Sketcher::SketchObject", "Sketch015")
sketch16.AttachmentSupport = (doc.getObject("YZ_Plane"), [""])
sketch16.MapMode = "FlatFace"
sketch16.AttachmentOffset = App.Placement(V(0, 0, 4.596501), App.Rotation())
sketch16.addGeometry([
    Part.Circle(V(-0.499261, 21.25, 0), V(0, 0, 1), 12),  # 0
    Part.Circle(V(-0.499261, 21.25, 0), V(0, 0, 1), 11.45),  # 1
    Part.Circle(V(14.750739, 37, 0), V(0, 0, 1), 1.5),  # 2
    Part.Circle(V(14.750739, 5.524564, 0), V(0, 0, 1), 1.55),  # 3
    Part.Circle(V(-16.249261, 5.5, 0), V(0, 0, 1), 1.5),  # 4
    Part.Circle(V(-16.249261, 37, 0), V(0, 0, 1), 1.5),  # 5
], False)
sketch16.addConstraint([
    Sketcher.Constraint("Coincident", 1, 3, 0, 3),
    Sketcher.Constraint("Equal", 2, 4),
    Sketcher.Constraint("Equal", 4, 5),
    Sketcher.Constraint("Horizontal", 2, 3, 5, 3),
    Sketcher.Constraint("Vertical", 2, 3, 3, 3),
    Sketcher.Constraint("Vertical", 4, 3, 5, 3),
    Sketcher.Constraint("Diameter", 0, Q("24 mm")),
    Sketcher.Constraint("Diameter", 2, Q("3 mm")),
    Sketcher.Constraint("Diameter", 1, Q("22.9 mm")),
    Sketcher.Constraint("Diameter", 3, Q("3.1 mm")),
    Sketcher.Constraint("DistanceY", -1, 1, 2, 3, Q("37 mm")),
    Sketcher.Constraint("DistanceX", 4, 3, 3, 3, Q("31 mm")),
    Sketcher.Constraint("DistanceY", -1, 1, 4, 3, Q("5.5 mm")),
    Sketcher.Constraint("DistanceY", -1, 1, 0, 3, Q("21.25 mm")),
    Sketcher.Constraint("DistanceX", 0, 3, 2, 3, Q("15.25 mm")),
    Sketcher.Constraint("DistanceX", 0, 3, -1, 1, Q("0.499261 mm")),
    Sketcher.Constraint("DistanceY", -1, 1, 3, 3, Q("5.524564 mm")),
])
pad8 = body.newObject("PartDesign::Pad", "Pad007")
pad8.Profile = sketch16
pad8.Length = 3
pad8.Reversed = True

# Sketch on YZ plane
sketch17 = body.newObject("Sketcher::SketchObject", "Sketch016")
sketch17.AttachmentSupport = (doc.getObject("YZ_Plane"), [""])
sketch17.MapMode = "FlatFace"
sketch17.AttachmentOffset = App.Placement(V(0, 0, 4.596501), App.Rotation())
sketch17.addGeometry([
    Part.LineSegment(V(-16.499261, 42.5, 0), V(-23.964355, 42.5, 0)),
    Part.LineSegment(V(-23.964355, 42.5, 0), V(-23.964355, 0, 0)),
    Part.LineSegment(V(-23.964355, 0, 0), V(-16.499261, 0, 0)),
    Part.LineSegment(V(-16.499261, 0, 0), V(-16.499261, 42.5, 0)),
], False)
sketch17.addConstraint([
    Sketcher.Constraint("Coincident", 0, 2, 1, 1),
    Sketcher.Constraint("Coincident", 1, 2, 2, 1),
    Sketcher.Constraint("Coincident", 2, 2, 3, 1),
    Sketcher.Constraint("Coincident", 3, 2, 0, 1),
    Sketcher.Constraint("Horizontal", 0),
    Sketcher.Constraint("Vertical", 1),
    Sketcher.Constraint("Horizontal", 2),
    Sketcher.Constraint("Vertical", 3),
    Sketcher.Constraint("PointOnObject", 1, 2, -1),
    Sketcher.Constraint("DistanceY", 1, 2, 1, 1, Q("42.5 mm")),
    Sketcher.Constraint("DistanceX", 0, 2, 0, 1, Q("7.465094 mm")),
    Sketcher.Constraint("DistanceX", 2, 2, -1, 1, Q("16.499261 mm")),
])
pocket9 = body.newObject("PartDesign::Pocket", "Pocket008")
pocket9.Profile = sketch17
pocket9.Length = 3
doc.recompute()

chamfer3 = body.newObject("PartDesign::Chamfer", "Chamfer002")
chamfer3.Base = (pocket9, edges_at(pocket9, [(4.597, -16.499, 21.25)]))
chamfer3.Size = 2

# Sketch on YZ plane
sketch18 = body.newObject("Sketcher::SketchObject", "Sketch017")
sketch18.AttachmentSupport = (doc.getObject("YZ_Plane"), [""])
sketch18.MapMode = "FlatFace"
sketch18.AttachmentOffset = App.Placement(V(0, 0, 1.596501), App.Rotation())
sketch18.addGeometry([
    Part.Circle(V(-0.499261, 21.25, 0), V(0, 0, 1), 13.75),
    Part.Circle(V(-0.499261, 21.25, 0), V(0, 0, 1), 11.45),
], False)
sketch18.addConstraint([
    Sketcher.Constraint("Coincident", 1, 3, 0, 3),
    Sketcher.Constraint("Diameter", 0, Q("27.5 mm")),
    Sketcher.Constraint("Diameter", 1, Q("22.9 mm")),
    Sketcher.Constraint("DistanceY", -1, 1, 0, 3, Q("21.25 mm")),
    Sketcher.Constraint("DistanceX", 0, 3, -1, 1, Q("0.499261 mm")),
])
pad9 = body.newObject("PartDesign::Pad", "Pad008")
pad9.Profile = sketch18
pad9.Length = 4
pad9.Reversed = True

# Sketch on YZ plane
sketch19 = body.newObject("Sketcher::SketchObject", "Sketch018")
sketch19.AttachmentSupport = (doc.getObject("YZ_Plane"), [""])
sketch19.MapMode = "FlatFace"
sketch19.AttachmentOffset = App.Placement(V(0, 0, 14.596501), App.Rotation())
sketch19.addGeometry([
    Part.LineSegment(V(39.068928, 42.5, 0), V(5.560739, 42.5, 0)),  # 0
    Part.LineSegment(V(5.560739, 42.5, 0), V(5.560739, 0, 0)),  # 1
    Part.LineSegment(V(5.560739, 0, 0), V(39.068928, 0, 0)),  # 2
    Part.LineSegment(V(39.068928, 0, 0), V(39.068928, 42.5, 0)),  # 3
    Part.Circle(V(34.568928, 38, 0), V(0, 0, 1), 3.175),  # 4
    Part.Circle(V(34.568928, 4.5, 0), V(0, 0, 1), 3.175),  # 5
], False)
sketch19.addConstraint([
    Sketcher.Constraint("Coincident", 0, 2, 1, 1),
    Sketcher.Constraint("Coincident", 1, 2, 2, 1),
    Sketcher.Constraint("Coincident", 2, 2, 3, 1),
    Sketcher.Constraint("Coincident", 3, 2, 0, 1),
    Sketcher.Constraint("Horizontal", 0),
    Sketcher.Constraint("Vertical", 1),
    Sketcher.Constraint("Horizontal", 2),
    Sketcher.Constraint("Vertical", 3),
    Sketcher.Constraint("Equal", 4, 5),
    Sketcher.Constraint("PointOnObject", 1, 2, -1),
    Sketcher.Constraint("Vertical", 4, 3, 5, 3),
    Sketcher.Constraint("Diameter", 4, Q("6.35 mm")),
    Sketcher.Constraint("DistanceY", 1, 2, 1, 1, Q("42.5 mm")),
    Sketcher.Constraint("DistanceY", -1, 1, 4, 3, Q("38 mm")),
    Sketcher.Constraint("DistanceY", 5, 3, 0, 2, Q("38 mm")),
    Sketcher.Constraint("DistanceX", 5, 3, 2, 2, Q("4.5 mm")),
    Sketcher.Constraint("DistanceX", 0, 2, 0, 1, Q("33.508189 mm")),
    Sketcher.Constraint("DistanceX", -1, 1, 0, 2, Q("5.560739 mm")),
])
pad10 = body.newObject("PartDesign::Pad", "Pad009")
pad10.Profile = sketch19
pad10.Length = 10
pad10.Reversed = True

# Sketch on XY plane
sketch20 = body.newObject("Sketcher::SketchObject", "Sketch019")
sketch20.AttachmentSupport = (doc.getObject("XY_Plane"), [""])
sketch20.MapMode = "FlatFace"
sketch20.addGeometry([
    Part.LineSegment(V(4.596501, 39.068928, 0), V(4.596501, -17.85662, 0)),
    Part.LineSegment(V(4.596501, -17.85662, 0), V(-37.419914, -17.85662, 0)),
    Part.LineSegment(V(-37.419914, -17.85662, 0), V(-42.573197, 39.068928, 0)),
    Part.LineSegment(V(-42.573197, 39.068928, 0), V(4.596501, 39.068928, 0)),
], False)
sketch20.addConstraint([
    Sketcher.Constraint("Coincident", 0, 2, 1, 1),
    Sketcher.Constraint("Coincident", 1, 2, 2, 1),
    Sketcher.Constraint("Coincident", 2, 2, 3, 1),
    Sketcher.Constraint("Coincident", 3, 2, 0, 1),
    Sketcher.Constraint("Vertical", 0),
    Sketcher.Constraint("Horizontal", 1),
    Sketcher.Constraint("Horizontal", 3),
    Sketcher.Constraint("DistanceX", 3, 1, 3, 2, Q("47.169698 mm")),
    Sketcher.Constraint("DistanceX", -1, 1, 0, 2, Q("4.596501 mm")),
    Sketcher.Constraint("DistanceX", 1, 2, 1, 1, Q("42.016415 mm")),
    Sketcher.Constraint("DistanceY", 0, 2, 0, 1, Q("56.925548 mm")),
    Sketcher.Constraint("DistanceY", 0, 2, -1, 1, Q("17.85662 mm")),
])
pocket10 = body.newObject("PartDesign::Pocket", "Pocket009")
pocket10.Profile = sketch20
pocket10.Length = 142
pocket10.Reversed = True
doc.recompute()

chamfer4 = body.newObject("PartDesign::Chamfer", "Chamfer003")
chamfer4.Base = (pocket10, edges_at(pocket10, [(9.597, 5.561, 42.5), (9.597, 5.561, 0)]))
chamfer4.Size = 10

# Sketch on XZ plane
sketch21 = body.newObject("Sketcher::SketchObject", "Sketch020")
sketch21.AttachmentSupport = (doc.getObject("XZ_Plane"), [""])
sketch21.MapMode = "FlatFace"
sketch21.AttachmentOffset = App.Placement(V(0, 0, -5.560739), App.Rotation())
sketch21.addGeometry([
    Part.LineSegment(V(11.039818, 22.276975, 0), V(11.039818, 21.25, 0)),
    Part.LineSegment(V(11.039818, 21.25, 0), V(12.87172, 21.25, 0)),
    Part.LineSegment(V(12.87172, 21.25, 0), V(12.87172, 22.276975, 0)),
    Part.LineSegment(V(12.87172, 22.276975, 0), V(11.039818, 22.276975, 0)),
], False)
sketch21.addConstraint([
    Sketcher.Constraint("Coincident", 0, 2, 1, 1),
    Sketcher.Constraint("Coincident", 1, 2, 2, 1),
    Sketcher.Constraint("Coincident", 2, 2, 3, 1),
    Sketcher.Constraint("Coincident", 3, 2, 0, 1),
    Sketcher.Constraint("Vertical", 0),
    Sketcher.Constraint("Horizontal", 1),
    Sketcher.Constraint("Vertical", 2),
    Sketcher.Constraint("Horizontal", 3),
    Sketcher.Constraint("DistanceY", -1, 1, 0, 2, Q("21.25 mm")),
    Sketcher.Constraint("DistanceX", 1, 1, 1, 2, Q("1.831902 mm")),
    Sketcher.Constraint("DistanceY", 0, 2, 0, 1, Q("1.026975 mm")),
    Sketcher.Constraint("DistanceX", -1, 1, 1, 2, Q("12.87172 mm")),
])
pad11 = body.newObject("PartDesign::Pad", "Pad010")
pad11.Profile = sketch21
pad11.Length = 0.2

# Sketch on YZ plane
sketch22 = body.newObject("Sketcher::SketchObject", "Sketch021")
sketch22.AttachmentSupport = (doc.getObject("YZ_Plane"), [""])
sketch22.MapMode = "FlatFace"
sketch22.AttachmentOffset = App.Placement(V(0, 0, 14.596501), App.Rotation())
sketch22.addGeometry([
    Part.LineSegment(V(40.068928, -1, 0), V(40.068928, 43.5, 0)),  # 0
    Part.LineSegment(V(40.068928, 43.5, 0), V(15.146525, 43.5, 0)),  # 1
    Part.LineSegment(V(15.146525, 43.5, 0), V(5.510739, 33.864214, 0)),  # 2
    Part.LineSegment(V(5.510739, 33.864214, 0), V(5.510739, 8.635786, 0)),  # 3
    Part.LineSegment(V(5.510739, 8.635786, 0), V(15.146525, -1, 0)),  # 4
    Part.LineSegment(V(15.146525, -1, 0), V(40.068928, -1, 0)),  # 5
    Part.Circle(V(34.568928, 4.5, 0), V(0, 0, 1), 3.175),  # 6
    Part.Circle(V(34.568928, 38, 0), V(0, 0, 1), 3.175),  # 7
], False)
sketch22.addConstraint([
    Sketcher.Constraint("Coincident", 0, 2, 1, 1),
    Sketcher.Constraint("Coincident", 1, 2, 2, 1),
    Sketcher.Constraint("Coincident", 2, 2, 3, 1),
    Sketcher.Constraint("Coincident", 3, 2, 4, 1),
    Sketcher.Constraint("Coincident", 4, 2, 5, 1),
    Sketcher.Constraint("Coincident", 5, 2, 0, 1),
    Sketcher.Constraint("Vertical", 0),
    Sketcher.Constraint("Horizontal", 1),
    Sketcher.Constraint("Vertical", 3),
    Sketcher.Constraint("Horizontal", 5),
    Sketcher.Constraint("Equal", 6, 7),
    Sketcher.Constraint("Perpendicular", 2, 4),
    Sketcher.Constraint("Vertical", 6, 3, 7, 3),
    Sketcher.Constraint("Vertical", 1, 2, 4, 2),
    Sketcher.Constraint("Equal", 2, 4),
    Sketcher.Constraint("Diameter", 6, Q("6.35 mm")),
    Sketcher.Constraint("DistanceY", 0, 1, 0, 2, Q("44.5 mm")),
    Sketcher.Constraint("DistanceY", -1, 1, 7, 3, Q("38 mm")),
    Sketcher.Constraint("DistanceY", 4, 2, -1, 1, Q("1 mm")),
    Sketcher.Constraint("DistanceY", 6, 3, 0, 2, Q("39 mm")),
    Sketcher.Constraint("DistanceX", 7, 3, 0, 2, Q("5.5 mm")),
    Sketcher.Constraint("Distance", 2, Q("13.62706 mm")),
    Sketcher.Constraint("DistanceX", 1, 2, 1, 1, Q("24.922403 mm")),
    Sketcher.Constraint("DistanceX", -1, 1, 2, 2, Q("5.510739 mm")),
])
pad12 = body.newObject("PartDesign::Pad", "Pad011")
pad12.Profile = sketch22
pad12.Length = 10
pad12.Reversed = True

# Sketch on YZ plane
sketch23 = body.newObject("Sketcher::SketchObject", "Sketch022")
sketch23.AttachmentSupport = (doc.getObject("YZ_Plane"), [""])
sketch23.MapMode = "FlatFace"
sketch23.AttachmentOffset = App.Placement(V(0, 0, 4.596501), App.Rotation())
sketch23.addGeometry([
    Part.LineSegment(V(45.068928, -5, 0), V(1.010739, -5, 0)),  # 0
    Part.LineSegment(V(1.010739, -5, 0), V(1.010739, 43.772311, 0)),  # 1
    Part.LineSegment(V(1.010739, 43.772311, 0), V(27.051079, 43.772311, 0)),  # 2
    Part.LineSegment(V(27.051079, 43.772311, 0), V(27.051079, 20.597179, 0)),  # 3
    Part.LineSegment(V(27.051079, 20.597179, 0), V(45.068928, 20.597179, 0)),  # 4
    Part.LineSegment(V(45.068928, 20.597179, 0), V(45.068928, -5, 0)),  # 5
    Part.Circle(V(34.568928, 4.5, 0), V(0, 0, 1), 6.15),  # 6
], False)
sketch23.addConstraint([
    Sketcher.Constraint("Coincident", 0, 2, 1, 1),
    Sketcher.Constraint("Coincident", 1, 2, 2, 1),
    Sketcher.Constraint("Coincident", 2, 2, 3, 1),
    Sketcher.Constraint("Coincident", 3, 2, 4, 1),
    Sketcher.Constraint("Coincident", 4, 2, 5, 1),
    Sketcher.Constraint("Coincident", 5, 2, 0, 1),
    Sketcher.Constraint("Horizontal", 0),
    Sketcher.Constraint("Vertical", 1),
    Sketcher.Constraint("Horizontal", 2),
    Sketcher.Constraint("Vertical", 3),
    Sketcher.Constraint("Horizontal", 4),
    Sketcher.Constraint("Vertical", 5),
    Sketcher.Constraint("Diameter", 6, Q("12.3 mm")),
    Sketcher.Constraint("DistanceY", 0, 2, -1, 1, Q("5 mm")),
    Sketcher.Constraint("DistanceY", -1, 1, 6, 3, Q("4.5 mm")),
    Sketcher.Constraint("DistanceX", 6, 3, 4, 2, Q("10.5 mm")),
    Sketcher.Constraint("DistanceX", 0, 2, 0, 1, Q("44.058189 mm")),
    Sketcher.Constraint("DistanceX", 2, 1, 2, 2, Q("26.040341 mm")),
    Sketcher.Constraint("DistanceY", 1, 1, 1, 2, Q("48.772311 mm")),
    Sketcher.Constraint("DistanceY", 3, 2, 3, 1, Q("23.175132 mm")),
    Sketcher.Constraint("DistanceX", -1, 1, 0, 2, Q("1.010739 mm")),
])
pad13 = body.newObject("PartDesign::Pad", "Pad012")
pad13.Profile = sketch23
pad13.Length = 15
pad13.Reversed = True

# Sketch on XY plane
sketch24 = body.newObject("Sketcher::SketchObject", "Sketch023")
sketch24.AttachmentSupport = (doc.getObject("XY_Plane"), [""])
sketch24.MapMode = "FlatFace"
sketch24.AttachmentOffset = App.Placement(V(0, 0, 43.772311), App.Rotation())
sketch24.addGeometry([
    Part.LineSegment(V(4.596501, 40.068928, 0), V(4.596501, 5.510739, 0)),
    Part.LineSegment(V(4.596501, 5.510739, 0), V(14.596501, 4.365687, 0)),
    Part.LineSegment(V(14.596501, 4.365687, 0), V(14.596501, 40.068928, 0)),
    Part.LineSegment(V(14.596501, 40.068928, 0), V(4.596501, 40.068928, 0)),
], False)
sketch24.addConstraint([
    Sketcher.Constraint("Coincident", 0, 2, 1, 1),
    Sketcher.Constraint("Coincident", 1, 2, 2, 1),
    Sketcher.Constraint("Coincident", 2, 2, 3, 1),
    Sketcher.Constraint("Coincident", 3, 2, 0, 1),
    Sketcher.Constraint("Vertical", 0),
    Sketcher.Constraint("Vertical", 2),
    Sketcher.Constraint("Horizontal", 3),
    Sketcher.Constraint("DistanceX", 3, 2, 3, 1, Q("10 mm")),
    Sketcher.Constraint("DistanceY", 0, 2, 0, 1, Q("34.558189 mm")),
    Sketcher.Constraint("DistanceY", 2, 1, 2, 2, Q("35.703241 mm")),
    Sketcher.Constraint("DistanceX", -1, 1, 0, 2, Q("4.596501 mm")),
    Sketcher.Constraint("DistanceY", -1, 1, 0, 2, Q("5.510739 mm")),
])
pocket11 = body.newObject("PartDesign::Pocket", "Pocket010")
pocket11.Profile = sketch24
pocket11.Length = 50

doc.recompute()
